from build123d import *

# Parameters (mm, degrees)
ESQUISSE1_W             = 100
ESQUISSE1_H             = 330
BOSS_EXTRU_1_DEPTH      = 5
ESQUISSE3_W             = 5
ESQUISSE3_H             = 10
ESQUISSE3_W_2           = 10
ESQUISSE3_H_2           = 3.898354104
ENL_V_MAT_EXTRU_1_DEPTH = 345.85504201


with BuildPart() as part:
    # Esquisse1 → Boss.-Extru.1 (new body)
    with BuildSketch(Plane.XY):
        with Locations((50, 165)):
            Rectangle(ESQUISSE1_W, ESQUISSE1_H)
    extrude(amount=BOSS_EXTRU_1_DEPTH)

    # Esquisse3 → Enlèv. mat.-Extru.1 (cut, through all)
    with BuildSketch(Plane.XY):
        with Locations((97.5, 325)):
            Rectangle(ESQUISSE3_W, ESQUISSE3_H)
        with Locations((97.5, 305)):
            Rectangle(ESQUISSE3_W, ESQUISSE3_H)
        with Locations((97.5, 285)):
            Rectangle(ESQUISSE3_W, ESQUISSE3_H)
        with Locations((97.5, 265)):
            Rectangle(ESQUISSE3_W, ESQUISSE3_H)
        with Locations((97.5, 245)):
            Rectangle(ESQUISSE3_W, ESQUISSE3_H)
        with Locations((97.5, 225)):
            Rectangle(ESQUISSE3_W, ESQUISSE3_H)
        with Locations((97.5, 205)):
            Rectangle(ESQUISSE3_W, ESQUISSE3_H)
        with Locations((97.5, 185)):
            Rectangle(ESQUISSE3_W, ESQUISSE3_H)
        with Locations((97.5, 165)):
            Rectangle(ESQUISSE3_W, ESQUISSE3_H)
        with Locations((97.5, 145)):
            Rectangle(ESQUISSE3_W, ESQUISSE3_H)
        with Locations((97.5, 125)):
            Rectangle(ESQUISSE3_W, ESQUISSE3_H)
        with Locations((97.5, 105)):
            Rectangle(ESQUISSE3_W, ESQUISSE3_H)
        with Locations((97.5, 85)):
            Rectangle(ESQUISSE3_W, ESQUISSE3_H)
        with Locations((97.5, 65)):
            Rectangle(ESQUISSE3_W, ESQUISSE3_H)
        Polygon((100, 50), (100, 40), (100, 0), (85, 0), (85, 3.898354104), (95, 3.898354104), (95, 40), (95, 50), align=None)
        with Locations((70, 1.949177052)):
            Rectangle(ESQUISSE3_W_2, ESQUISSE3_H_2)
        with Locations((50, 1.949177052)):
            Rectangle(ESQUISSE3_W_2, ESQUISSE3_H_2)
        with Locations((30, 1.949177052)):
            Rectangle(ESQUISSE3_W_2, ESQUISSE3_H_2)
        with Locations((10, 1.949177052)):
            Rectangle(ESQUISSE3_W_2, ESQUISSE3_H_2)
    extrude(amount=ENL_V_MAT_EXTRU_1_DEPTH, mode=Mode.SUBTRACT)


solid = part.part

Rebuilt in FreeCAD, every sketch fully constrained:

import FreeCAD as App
import Part
import Sketcher

V = App.Vector


def add_polygon(sketch, points):
    """Adds a closed chain of lines whose ends are joined by coincident constraints."""
    first, n = sketch.GeometryCount, len(points)
    for a, b in zip(points, points[1:] + points[:1]):
        sketch.addGeometry(Part.LineSegment(App.Vector(*a, 0), App.Vector(*b, 0)), False)
    for i in range(n):
        sketch.addConstraint(Sketcher.Constraint("Coincident", first + i, 2, first + (i + 1) % n, 1))

doc = App.newDocument("Part")
body = doc.addObject("PartDesign::Body", "Body")

# Sketch on XY plane
sketch1 = doc.addObject("Sketcher::SketchObject", "Sketch")
body.addObject(sketch1)
sketch1.AttachmentSupport = (doc.XY_Plane, [""])
sketch1.MapMode = "FlatFace"
add_polygon(sketch1, [(0, 330), (0, 0), (100, 0), (100, 330)])  # lines 0-3
sketch1.addConstraint(Sketcher.Constraint("Vertical", 0))
sketch1.addConstraint(Sketcher.Constraint("Horizontal", 1))
sketch1.addConstraint(Sketcher.Constraint("Vertical", 2))
sketch1.addConstraint(Sketcher.Constraint("Horizontal", 3))
sketch1.addConstraint(Sketcher.Constraint("Coincident", 0, 2, -1, 1))
sketch1.addConstraint(Sketcher.Constraint("DistanceX", 1, 1, 1, 2, 100.0))
sketch1.addConstraint(Sketcher.Constraint("DistanceY", 0, 2, 0, 1, 330.0))
pad1 = doc.addObject("PartDesign::Pad", "Pad")
body.addObject(pad1)
pad1.Profile = sketch1
pad1.Length = 5

# Sketch on XY plane
sketch2 = doc.addObject("Sketcher::SketchObject", "Sketch001")
body.addObject(sketch2)
sketch2.AttachmentSupport = (doc.XY_Plane, [""])
sketch2.MapMode = "FlatFace"
add_polygon(sketch2, [(95, 330), (95, 320), (100, 320), (100, 330)])  # lines 0-3
add_polygon(sketch2, [(95, 310), (95, 300), (100, 300), (100, 310)])  # lines 4-7
add_polygon(sketch2, [(95, 290), (95, 280), (100, 280), (100, 290)])  # lines 8-11
add_polygon(sketch2, [(95, 270), (95, 260), (100, 260), (100, 270)])  # lines 12-15
add_polygon(sketch2, [(95, 250), (95, 240), (100, 240), (100, 250)])  # lines 16-19
add_polygon(sketch2, [(95, 230), (95, 220), (100, 220), (100, 230)])  # lines 20-23
add_polygon(sketch2, [(95, 210), (95, 200), (100, 200), (100, 210)])  # lines 24-27
add_polygon(sketch2, [(95, 190), (95, 180), (100, 180), (100, 190)])  # lines 28-31
add_polygon(sketch2, [(95, 170), (95, 160), (100, 160), (100, 170)])  # lines 32-35
add_polygon(sketch2, [(95, 150), (95, 140), (100, 140), (100, 150)])  # lines 36-39
add_polygon(sketch2, [(95, 130), (95, 120), (100, 120), (100, 130)])  # lines 40-43
add_polygon(sketch2, [(95, 110), (95, 100), (100, 100), (100, 110)])  # lines 44-47
add_polygon(sketch2, [(95, 90), (95, 80), (100, 80), (100, 90)])  # lines 48-51
add_polygon(sketch2, [(95, 70), (95, 60), (100, 60), (100, 70)])  # lines 52-55
add_polygon(sketch2, [(100, 0), (100, 50), (95, 50), (95, 3.898354), (85, 3.898354), (85, 0)])  # lines 56-61
add_polygon(sketch2, [(65, 3.898354), (65, 0), (75, 0), (75, 3.898354)])  # lines 62-65
add_polygon(sketch2, [(45, 3.898354), (45, 0), (55, 0), (55, 3.898354)])  # lines 66-69
add_polygon(sketch2, [(25, 3.898354), (25, 0), (35, 0), (35, 3.898354)])  # lines 70-73
add_polygon(sketch2, [(5, 3.898354), (5, 0), (15, 0), (15, 3.898354)])  # lines 74-77
sketch2.addConstraint(Sketcher.Constraint("Vertical", 0))
sketch2.addConstraint(Sketcher.Constraint("Horizontal", 1))
sketch2.addConstraint(Sketcher.Constraint("Vertical", 2))
sketch2.addConstraint(Sketcher.Constraint("Horizontal", 3))
sketch2.addConstraint(Sketcher.Constraint("Vertical", 4))
sketch2.addConstraint(Sketcher.Constraint("Horizontal", 5))
sketch2.addConstraint(Sketcher.Constraint("Vertical", 6))
sketch2.addConstraint(Sketcher.Constraint("Horizontal", 7))
sketch2.addConstraint(Sketcher.Constraint("Vertical", 8))
sketch2.addConstraint(Sketcher.Constraint("Horizontal", 9))
sketch2.addConstraint(Sketcher.Constraint("Vertical", 10))
sketch2.addConstraint(Sketcher.Constraint("Horizontal", 11))
sketch2.addConstraint(Sketcher.Constraint("Vertical", 12))
sketch2.addConstraint(Sketcher.Constraint("Horizontal", 13))
sketch2.addConstraint(Sketcher.Constraint("Vertical", 14))
sketch2.addConstraint(Sketcher.Constraint("Horizontal", 15))
sketch2.addConstraint(Sketcher.Constraint("Vertical", 16))
sketch2.addConstraint(Sketcher.Constraint("Horizontal", 17))
sketch2.addConstraint(Sketcher.Constraint("Vertical", 18))
sketch2.addConstraint(Sketcher.Constraint("Horizontal", 19))
sketch2.addConstraint(Sketcher.Constraint("Vertical", 20))
sketch2.addConstraint(Sketcher.Constraint("Horizontal", 21))
sketch2.addConstraint(Sketcher.Constraint("Vertical", 22))
sketch2.addConstraint(Sketcher.Constraint("Horizontal", 23))
sketch2.addConstraint(Sketcher.Constraint("Vertical", 24))
sketch2.addConstraint(Sketcher.Constraint("Horizontal", 25))
sketch2.addConstraint(Sketcher.Constraint("Vertical", 26))
sketch2.addConstraint(Sketcher.Constraint("Horizontal", 27))
sketch2.addConstraint(Sketcher.Constraint("Vertical", 28))
sketch2.addConstraint(Sketcher.Constraint("Horizontal", 29))
sketch2.addConstraint(Sketcher.Constraint("Vertical", 30))
sketch2.addConstraint(Sketcher.Constraint("Horizontal", 31))
sketch2.addConstraint(Sketcher.Constraint("Vertical", 32))
sketch2.addConstraint(Sketcher.Constraint("Horizontal", 33))
sketch2.addConstraint(Sketcher.Constraint("Vertical", 34))
sketch2.addConstraint(Sketcher.Constraint("Horizontal", 35))
sketch2.addConstraint(Sketcher.Constraint("Vertical", 36))
sketch2.addConstraint(Sketcher.Constraint("Horizontal", 37))
sketch2.addConstraint(Sketcher.Constraint("Vertical", 38))
sketch2.addConstraint(Sketcher.Constraint("Horizontal", 39))
sketch2.addConstraint(Sketcher.Constraint("Vertical", 40))
sketch2.addConstraint(Sketcher.Constraint("Horizontal", 41))
sketch2.addConstraint(Sketcher.Constraint("Vertical", 42))
sketch2.addConstraint(Sketcher.Constraint("Horizontal", 43))
sketch2.addConstraint(Sketcher.Constraint("Vertical", 44))
sketch2.addConstraint(Sketcher.Constraint("Horizontal", 45))
sketch2.addConstraint(Sketcher.Constraint("Vertical", 46))
sketch2.addConstraint(Sketcher.Constraint("Horizontal", 47))
sketch2.addConstraint(Sketcher.Constraint("Vertical", 48))
sketch2.addConstraint(Sketcher.Constraint("Horizontal", 49))
sketch2.addConstraint(Sketcher.Constraint("Vertical", 50))
sketch2.addConstraint(Sketcher.Constraint("Horizontal", 51))
sketch2.addConstraint(Sketcher.Constraint("Vertical", 52))
sketch2.addConstraint(Sketcher.Constraint("Horizontal", 53))
sketch2.addConstraint(Sketcher.Constraint("Vertical", 54))
sketch2.addConstraint(Sketcher.Constraint("Horizontal", 55))
sketch2.addConstraint(Sketcher.Constraint("Vertical", 56))
sketch2.addConstraint(Sketcher.Constraint("Horizontal", 57))
sketch2.addConstraint(Sketcher.Constraint("Vertical", 58))
sketch2.addConstraint(Sketcher.Constraint("Horizontal", 59))
sketch2.addConstraint(Sketcher.Constraint("Vertical", 60))
sketch2.addConstraint(Sketcher.Constraint("Horizontal", 61))
sketch2.addConstraint(Sketcher.Constraint("Vertical", 62))
sketch2.addConstraint(Sketcher.Constraint("Horizontal", 63))
sketch2.addConstraint(Sketcher.Constraint("Vertical", 64))
sketch2.addConstraint(Sketcher.Constraint("Horizontal", 65))
sketch2.addConstraint(Sketcher.Constraint("Vertical", 66))
sketch2.addConstraint(Sketcher.Constraint("Horizontal", 67))
sketch2.addConstraint(Sketcher.Constraint("Vertical", 68))
sketch2.addConstraint(Sketcher.Constraint("Horizontal", 69))
sketch2.addConstraint(Sketcher.Constraint("Vertical", 70))
sketch2.addConstraint(Sketcher.Constraint("Horizontal", 71))
sketch2.addConstraint(Sketcher.Constraint("Vertical", 72))
sketch2.addConstraint(Sketcher.Constraint("Horizontal", 73))
sketch2.addConstraint(Sketcher.Constraint("Vertical", 74))
sketch2.addConstraint(Sketcher.Constraint("Horizontal", 75))
sketch2.addConstraint(Sketcher.Constraint("Vertical", 76))
sketch2.addConstraint(Sketcher.Constraint("Horizontal", 77))
sketch2.addConstraint(Sketcher.Constraint("PointOnObject", 60, 2, -1))
sketch2.addConstraint(Sketcher.Constraint("PointOnObject", 62, 2, -1))
sketch2.addConstraint(Sketcher.Constraint("PointOnObject", 66, 2, -1))
sketch2.addConstraint(Sketcher.Constraint("PointOnObject", 70, 2, -1))
sketch2.addConstraint(Sketcher.Constraint("PointOnObject", 74, 2, -1))
sketch2.addConstraint(Sketcher.Constraint("Horizontal", 59, 2, 64, 2))
sketch2.addConstraint(Sketcher.Constraint("Horizontal", 65, 2, 68, 2))
sketch2.addConstraint(Sketcher.Constraint("Horizontal", 69, 2, 72, 2))
sketch2.addConstraint(Sketcher.Constraint("Horizontal", 73, 2, 76, 2))
sketch2.addConstraint(Sketcher.Constraint("Vertical", 3, 2, 4, 2))
sketch2.addConstraint(Sketcher.Constraint("Vertical", 2, 2, 5, 2))
sketch2.addConstraint(Sketcher.Constraint("Vertical", 7, 2, 8, 2))
sketch2.addConstraint(Sketcher.Constraint("Vertical", 6, 2, 9, 2))
sketch2.addConstraint(Sketcher.Constraint("Vertical", 11, 2, 12, 2))
sketch2.addConstraint(Sketcher.Constraint("Vertical", 10, 2, 13, 2))
sketch2.addConstraint(Sketcher.Constraint("Vertical", 15, 2, 16, 2))
sketch2.addConstraint(Sketcher.Constraint("Vertical", 14, 2, 17, 2))
sketch2.addConstraint(Sketcher.Constraint("Vertical", 19, 2, 20, 2))
sketch2.addConstraint(Sketcher.Constraint("Vertical", 18, 2, 21, 2))
sketch2.addConstraint(Sketcher.Constraint("Vertical", 23, 2, 24, 2))
sketch2.addConstraint(Sketcher.Constraint("Vertical", 22, 2, 25, 2))
sketch2.addConstraint(Sketcher.Constraint("Vertical", 27, 2, 28, 2))
sketch2.addConstraint(Sketcher.Constraint("Vertical", 26, 2, 29, 2))
sketch2.addConstraint(Sketcher.Constraint("Vertical", 31, 2, 32, 2))
sketch2.addConstraint(Sketcher.Constraint("Vertical", 30, 2, 33, 2))
sketch2.addConstraint(Sketcher.Constraint("Vertical", 35, 2, 36, 2))
sketch2.addConstraint(Sketcher.Constraint("Vertical", 34, 2, 37, 2))
sketch2.addConstraint(Sketcher.Constraint("Vertical", 39, 2, 40, 2))
sketch2.addConstraint(Sketcher.Constraint("Vertical", 38, 2, 41, 2))
sketch2.addConstraint(Sketcher.Constraint("Vertical", 43, 2, 44, 2))
sketch2.addConstraint(Sketcher.Constraint("Vertical", 42, 2, 45, 2))
sketch2.addConstraint(Sketcher.Constraint("Vertical", 47, 2, 48, 2))
sketch2.addConstraint(Sketcher.Constraint("Vertical", 46, 2, 49, 2))
sketch2.addConstraint(Sketcher.Constraint("Vertical", 51, 2, 52, 2))
sketch2.addConstraint(Sketcher.Constraint("Vertical", 50, 2, 53, 2))
sketch2.addConstraint(Sketcher.Constraint("Vertical", 54, 2, 56, 2))
sketch2.addConstraint(Sketcher.Constraint("Vertical", 55, 2, 57, 2))
sketch2.addConstraint(Sketcher.Constraint("Equal", 59, 63))
sketch2.addConstraint(Sketcher.Constraint("Equal", 65, 67))
sketch2.addConstraint(Sketcher.Constraint("Equal", 69, 71))
sketch2.addConstraint(Sketcher.Constraint("Equal", 73, 75))
sketch2.addConstraint(Sketcher.Constraint("Equal", 77, 0))
sketch2.addConstraint(Sketcher.Constraint("Equal", 2, 4))
sketch2.addConstraint(Sketcher.Constraint("Equal", 6, 8))
sketch2.addConstraint(Sketcher.Constraint("Equal", 10, 12))
sketch2.addConstraint(Sketcher.Constraint("Equal", 14, 16))
sketch2.addConstraint(Sketcher.Constraint("Equal", 18, 20))
sketch2.addConstraint(Sketcher.Constraint("Equal", 22, 24))
sketch2.addConstraint(Sketcher.Constraint("Equal", 26, 28))
sketch2.addConstraint(Sketcher.Constraint("Equal", 30, 32))
sketch2.addConstraint(Sketcher.Constraint("Equal", 34, 36))
sketch2.addConstraint(Sketcher.Constraint("Equal", 38, 40))
sketch2.addConstraint(Sketcher.Constraint("Equal", 42, 44))
sketch2.addConstraint(Sketcher.Constraint("Equal", 46, 48))
sketch2.addConstraint(Sketcher.Constraint("Equal", 50, 52))
sketch2.addConstraint(Sketcher.Constraint("DistanceX", 1, 1, 1, 2, 5.0))
sketch2.addConstraint(Sketcher.Constraint("DistanceX", 59, 2, 59, 1, 10.0))
sketch2.addConstraint(Sketcher.Constraint("DistanceY", 56, 1, 56, 2, 50.0))
sketch2.addConstraint(Sketcher.Constraint("DistanceX", -1, 1, 0, 2, 95.0))
sketch2.addConstraint(Sketcher.Constraint("DistanceY", -1, 1, 0, 2, 320.0))
sketch2.addConstraint(Sketcher.Constraint("DistanceY", -1, 1, 4, 2, 300.0))
sketch2.addConstraint(Sketcher.Constraint("DistanceY", -1, 1, 8, 2, 280.0))
sketch2.addConstraint(Sketcher.Constraint("DistanceY", -1, 1, 12, 2, 260.0))
sketch2.addConstraint(Sketcher.Constraint("DistanceY", -1, 1, 16, 2, 240.0))
sketch2.addConstraint(Sketcher.Constraint("DistanceY", -1, 1, 20, 2, 220.0))
sketch2.addConstraint(Sketcher.Constraint("DistanceY", -1, 1, 24, 2, 200.0))
sketch2.addConstraint(Sketcher.Constraint("DistanceY", -1, 1, 28, 2, 180.0))
sketch2.addConstraint(Sketcher.Constraint("DistanceY", -1, 1, 32, 2, 160.0))
sketch2.addConstraint(Sketcher.Constraint("DistanceY", -1, 1, 36, 2, 140.0))
sketch2.addConstraint(Sketcher.Constraint("DistanceY", -1, 1, 40, 2, 120.0))
sketch2.addConstraint(Sketcher.Constraint("DistanceY", -1, 1, 44, 2, 100.0))
sketch2.addConstraint(Sketcher.Constraint("DistanceY", -1, 1, 48, 2, 80.0))
sketch2.addConstraint(Sketcher.Constraint("DistanceY", -1, 1, 52, 2, 60.0))
sketch2.addConstraint(Sketcher.Constraint("DistanceX", -1, 1, 62, 2, 65.0))
sketch2.addConstraint(Sketcher.Constraint("DistanceX", -1, 1, 66, 2, 45.0))
sketch2.addConstraint(Sketcher.Constraint("DistanceX", -1, 1, 70, 2, 25.0))
sketch2.addConstraint(Sketcher.Constraint("DistanceX", -1, 1, 74, 2, 5.0))
sketch2.addConstraint(Sketcher.Constraint("DistanceY", 58, 2, 58, 1, 46.101646))
pocket1 = doc.addObject("PartDesign::Pocket", "Pocket")
body.addObject(pocket1)
pocket1.Profile = sketch2
pocket1.Type = "ThroughAll"
pocket1.Reversed = True

doc.recompute()
